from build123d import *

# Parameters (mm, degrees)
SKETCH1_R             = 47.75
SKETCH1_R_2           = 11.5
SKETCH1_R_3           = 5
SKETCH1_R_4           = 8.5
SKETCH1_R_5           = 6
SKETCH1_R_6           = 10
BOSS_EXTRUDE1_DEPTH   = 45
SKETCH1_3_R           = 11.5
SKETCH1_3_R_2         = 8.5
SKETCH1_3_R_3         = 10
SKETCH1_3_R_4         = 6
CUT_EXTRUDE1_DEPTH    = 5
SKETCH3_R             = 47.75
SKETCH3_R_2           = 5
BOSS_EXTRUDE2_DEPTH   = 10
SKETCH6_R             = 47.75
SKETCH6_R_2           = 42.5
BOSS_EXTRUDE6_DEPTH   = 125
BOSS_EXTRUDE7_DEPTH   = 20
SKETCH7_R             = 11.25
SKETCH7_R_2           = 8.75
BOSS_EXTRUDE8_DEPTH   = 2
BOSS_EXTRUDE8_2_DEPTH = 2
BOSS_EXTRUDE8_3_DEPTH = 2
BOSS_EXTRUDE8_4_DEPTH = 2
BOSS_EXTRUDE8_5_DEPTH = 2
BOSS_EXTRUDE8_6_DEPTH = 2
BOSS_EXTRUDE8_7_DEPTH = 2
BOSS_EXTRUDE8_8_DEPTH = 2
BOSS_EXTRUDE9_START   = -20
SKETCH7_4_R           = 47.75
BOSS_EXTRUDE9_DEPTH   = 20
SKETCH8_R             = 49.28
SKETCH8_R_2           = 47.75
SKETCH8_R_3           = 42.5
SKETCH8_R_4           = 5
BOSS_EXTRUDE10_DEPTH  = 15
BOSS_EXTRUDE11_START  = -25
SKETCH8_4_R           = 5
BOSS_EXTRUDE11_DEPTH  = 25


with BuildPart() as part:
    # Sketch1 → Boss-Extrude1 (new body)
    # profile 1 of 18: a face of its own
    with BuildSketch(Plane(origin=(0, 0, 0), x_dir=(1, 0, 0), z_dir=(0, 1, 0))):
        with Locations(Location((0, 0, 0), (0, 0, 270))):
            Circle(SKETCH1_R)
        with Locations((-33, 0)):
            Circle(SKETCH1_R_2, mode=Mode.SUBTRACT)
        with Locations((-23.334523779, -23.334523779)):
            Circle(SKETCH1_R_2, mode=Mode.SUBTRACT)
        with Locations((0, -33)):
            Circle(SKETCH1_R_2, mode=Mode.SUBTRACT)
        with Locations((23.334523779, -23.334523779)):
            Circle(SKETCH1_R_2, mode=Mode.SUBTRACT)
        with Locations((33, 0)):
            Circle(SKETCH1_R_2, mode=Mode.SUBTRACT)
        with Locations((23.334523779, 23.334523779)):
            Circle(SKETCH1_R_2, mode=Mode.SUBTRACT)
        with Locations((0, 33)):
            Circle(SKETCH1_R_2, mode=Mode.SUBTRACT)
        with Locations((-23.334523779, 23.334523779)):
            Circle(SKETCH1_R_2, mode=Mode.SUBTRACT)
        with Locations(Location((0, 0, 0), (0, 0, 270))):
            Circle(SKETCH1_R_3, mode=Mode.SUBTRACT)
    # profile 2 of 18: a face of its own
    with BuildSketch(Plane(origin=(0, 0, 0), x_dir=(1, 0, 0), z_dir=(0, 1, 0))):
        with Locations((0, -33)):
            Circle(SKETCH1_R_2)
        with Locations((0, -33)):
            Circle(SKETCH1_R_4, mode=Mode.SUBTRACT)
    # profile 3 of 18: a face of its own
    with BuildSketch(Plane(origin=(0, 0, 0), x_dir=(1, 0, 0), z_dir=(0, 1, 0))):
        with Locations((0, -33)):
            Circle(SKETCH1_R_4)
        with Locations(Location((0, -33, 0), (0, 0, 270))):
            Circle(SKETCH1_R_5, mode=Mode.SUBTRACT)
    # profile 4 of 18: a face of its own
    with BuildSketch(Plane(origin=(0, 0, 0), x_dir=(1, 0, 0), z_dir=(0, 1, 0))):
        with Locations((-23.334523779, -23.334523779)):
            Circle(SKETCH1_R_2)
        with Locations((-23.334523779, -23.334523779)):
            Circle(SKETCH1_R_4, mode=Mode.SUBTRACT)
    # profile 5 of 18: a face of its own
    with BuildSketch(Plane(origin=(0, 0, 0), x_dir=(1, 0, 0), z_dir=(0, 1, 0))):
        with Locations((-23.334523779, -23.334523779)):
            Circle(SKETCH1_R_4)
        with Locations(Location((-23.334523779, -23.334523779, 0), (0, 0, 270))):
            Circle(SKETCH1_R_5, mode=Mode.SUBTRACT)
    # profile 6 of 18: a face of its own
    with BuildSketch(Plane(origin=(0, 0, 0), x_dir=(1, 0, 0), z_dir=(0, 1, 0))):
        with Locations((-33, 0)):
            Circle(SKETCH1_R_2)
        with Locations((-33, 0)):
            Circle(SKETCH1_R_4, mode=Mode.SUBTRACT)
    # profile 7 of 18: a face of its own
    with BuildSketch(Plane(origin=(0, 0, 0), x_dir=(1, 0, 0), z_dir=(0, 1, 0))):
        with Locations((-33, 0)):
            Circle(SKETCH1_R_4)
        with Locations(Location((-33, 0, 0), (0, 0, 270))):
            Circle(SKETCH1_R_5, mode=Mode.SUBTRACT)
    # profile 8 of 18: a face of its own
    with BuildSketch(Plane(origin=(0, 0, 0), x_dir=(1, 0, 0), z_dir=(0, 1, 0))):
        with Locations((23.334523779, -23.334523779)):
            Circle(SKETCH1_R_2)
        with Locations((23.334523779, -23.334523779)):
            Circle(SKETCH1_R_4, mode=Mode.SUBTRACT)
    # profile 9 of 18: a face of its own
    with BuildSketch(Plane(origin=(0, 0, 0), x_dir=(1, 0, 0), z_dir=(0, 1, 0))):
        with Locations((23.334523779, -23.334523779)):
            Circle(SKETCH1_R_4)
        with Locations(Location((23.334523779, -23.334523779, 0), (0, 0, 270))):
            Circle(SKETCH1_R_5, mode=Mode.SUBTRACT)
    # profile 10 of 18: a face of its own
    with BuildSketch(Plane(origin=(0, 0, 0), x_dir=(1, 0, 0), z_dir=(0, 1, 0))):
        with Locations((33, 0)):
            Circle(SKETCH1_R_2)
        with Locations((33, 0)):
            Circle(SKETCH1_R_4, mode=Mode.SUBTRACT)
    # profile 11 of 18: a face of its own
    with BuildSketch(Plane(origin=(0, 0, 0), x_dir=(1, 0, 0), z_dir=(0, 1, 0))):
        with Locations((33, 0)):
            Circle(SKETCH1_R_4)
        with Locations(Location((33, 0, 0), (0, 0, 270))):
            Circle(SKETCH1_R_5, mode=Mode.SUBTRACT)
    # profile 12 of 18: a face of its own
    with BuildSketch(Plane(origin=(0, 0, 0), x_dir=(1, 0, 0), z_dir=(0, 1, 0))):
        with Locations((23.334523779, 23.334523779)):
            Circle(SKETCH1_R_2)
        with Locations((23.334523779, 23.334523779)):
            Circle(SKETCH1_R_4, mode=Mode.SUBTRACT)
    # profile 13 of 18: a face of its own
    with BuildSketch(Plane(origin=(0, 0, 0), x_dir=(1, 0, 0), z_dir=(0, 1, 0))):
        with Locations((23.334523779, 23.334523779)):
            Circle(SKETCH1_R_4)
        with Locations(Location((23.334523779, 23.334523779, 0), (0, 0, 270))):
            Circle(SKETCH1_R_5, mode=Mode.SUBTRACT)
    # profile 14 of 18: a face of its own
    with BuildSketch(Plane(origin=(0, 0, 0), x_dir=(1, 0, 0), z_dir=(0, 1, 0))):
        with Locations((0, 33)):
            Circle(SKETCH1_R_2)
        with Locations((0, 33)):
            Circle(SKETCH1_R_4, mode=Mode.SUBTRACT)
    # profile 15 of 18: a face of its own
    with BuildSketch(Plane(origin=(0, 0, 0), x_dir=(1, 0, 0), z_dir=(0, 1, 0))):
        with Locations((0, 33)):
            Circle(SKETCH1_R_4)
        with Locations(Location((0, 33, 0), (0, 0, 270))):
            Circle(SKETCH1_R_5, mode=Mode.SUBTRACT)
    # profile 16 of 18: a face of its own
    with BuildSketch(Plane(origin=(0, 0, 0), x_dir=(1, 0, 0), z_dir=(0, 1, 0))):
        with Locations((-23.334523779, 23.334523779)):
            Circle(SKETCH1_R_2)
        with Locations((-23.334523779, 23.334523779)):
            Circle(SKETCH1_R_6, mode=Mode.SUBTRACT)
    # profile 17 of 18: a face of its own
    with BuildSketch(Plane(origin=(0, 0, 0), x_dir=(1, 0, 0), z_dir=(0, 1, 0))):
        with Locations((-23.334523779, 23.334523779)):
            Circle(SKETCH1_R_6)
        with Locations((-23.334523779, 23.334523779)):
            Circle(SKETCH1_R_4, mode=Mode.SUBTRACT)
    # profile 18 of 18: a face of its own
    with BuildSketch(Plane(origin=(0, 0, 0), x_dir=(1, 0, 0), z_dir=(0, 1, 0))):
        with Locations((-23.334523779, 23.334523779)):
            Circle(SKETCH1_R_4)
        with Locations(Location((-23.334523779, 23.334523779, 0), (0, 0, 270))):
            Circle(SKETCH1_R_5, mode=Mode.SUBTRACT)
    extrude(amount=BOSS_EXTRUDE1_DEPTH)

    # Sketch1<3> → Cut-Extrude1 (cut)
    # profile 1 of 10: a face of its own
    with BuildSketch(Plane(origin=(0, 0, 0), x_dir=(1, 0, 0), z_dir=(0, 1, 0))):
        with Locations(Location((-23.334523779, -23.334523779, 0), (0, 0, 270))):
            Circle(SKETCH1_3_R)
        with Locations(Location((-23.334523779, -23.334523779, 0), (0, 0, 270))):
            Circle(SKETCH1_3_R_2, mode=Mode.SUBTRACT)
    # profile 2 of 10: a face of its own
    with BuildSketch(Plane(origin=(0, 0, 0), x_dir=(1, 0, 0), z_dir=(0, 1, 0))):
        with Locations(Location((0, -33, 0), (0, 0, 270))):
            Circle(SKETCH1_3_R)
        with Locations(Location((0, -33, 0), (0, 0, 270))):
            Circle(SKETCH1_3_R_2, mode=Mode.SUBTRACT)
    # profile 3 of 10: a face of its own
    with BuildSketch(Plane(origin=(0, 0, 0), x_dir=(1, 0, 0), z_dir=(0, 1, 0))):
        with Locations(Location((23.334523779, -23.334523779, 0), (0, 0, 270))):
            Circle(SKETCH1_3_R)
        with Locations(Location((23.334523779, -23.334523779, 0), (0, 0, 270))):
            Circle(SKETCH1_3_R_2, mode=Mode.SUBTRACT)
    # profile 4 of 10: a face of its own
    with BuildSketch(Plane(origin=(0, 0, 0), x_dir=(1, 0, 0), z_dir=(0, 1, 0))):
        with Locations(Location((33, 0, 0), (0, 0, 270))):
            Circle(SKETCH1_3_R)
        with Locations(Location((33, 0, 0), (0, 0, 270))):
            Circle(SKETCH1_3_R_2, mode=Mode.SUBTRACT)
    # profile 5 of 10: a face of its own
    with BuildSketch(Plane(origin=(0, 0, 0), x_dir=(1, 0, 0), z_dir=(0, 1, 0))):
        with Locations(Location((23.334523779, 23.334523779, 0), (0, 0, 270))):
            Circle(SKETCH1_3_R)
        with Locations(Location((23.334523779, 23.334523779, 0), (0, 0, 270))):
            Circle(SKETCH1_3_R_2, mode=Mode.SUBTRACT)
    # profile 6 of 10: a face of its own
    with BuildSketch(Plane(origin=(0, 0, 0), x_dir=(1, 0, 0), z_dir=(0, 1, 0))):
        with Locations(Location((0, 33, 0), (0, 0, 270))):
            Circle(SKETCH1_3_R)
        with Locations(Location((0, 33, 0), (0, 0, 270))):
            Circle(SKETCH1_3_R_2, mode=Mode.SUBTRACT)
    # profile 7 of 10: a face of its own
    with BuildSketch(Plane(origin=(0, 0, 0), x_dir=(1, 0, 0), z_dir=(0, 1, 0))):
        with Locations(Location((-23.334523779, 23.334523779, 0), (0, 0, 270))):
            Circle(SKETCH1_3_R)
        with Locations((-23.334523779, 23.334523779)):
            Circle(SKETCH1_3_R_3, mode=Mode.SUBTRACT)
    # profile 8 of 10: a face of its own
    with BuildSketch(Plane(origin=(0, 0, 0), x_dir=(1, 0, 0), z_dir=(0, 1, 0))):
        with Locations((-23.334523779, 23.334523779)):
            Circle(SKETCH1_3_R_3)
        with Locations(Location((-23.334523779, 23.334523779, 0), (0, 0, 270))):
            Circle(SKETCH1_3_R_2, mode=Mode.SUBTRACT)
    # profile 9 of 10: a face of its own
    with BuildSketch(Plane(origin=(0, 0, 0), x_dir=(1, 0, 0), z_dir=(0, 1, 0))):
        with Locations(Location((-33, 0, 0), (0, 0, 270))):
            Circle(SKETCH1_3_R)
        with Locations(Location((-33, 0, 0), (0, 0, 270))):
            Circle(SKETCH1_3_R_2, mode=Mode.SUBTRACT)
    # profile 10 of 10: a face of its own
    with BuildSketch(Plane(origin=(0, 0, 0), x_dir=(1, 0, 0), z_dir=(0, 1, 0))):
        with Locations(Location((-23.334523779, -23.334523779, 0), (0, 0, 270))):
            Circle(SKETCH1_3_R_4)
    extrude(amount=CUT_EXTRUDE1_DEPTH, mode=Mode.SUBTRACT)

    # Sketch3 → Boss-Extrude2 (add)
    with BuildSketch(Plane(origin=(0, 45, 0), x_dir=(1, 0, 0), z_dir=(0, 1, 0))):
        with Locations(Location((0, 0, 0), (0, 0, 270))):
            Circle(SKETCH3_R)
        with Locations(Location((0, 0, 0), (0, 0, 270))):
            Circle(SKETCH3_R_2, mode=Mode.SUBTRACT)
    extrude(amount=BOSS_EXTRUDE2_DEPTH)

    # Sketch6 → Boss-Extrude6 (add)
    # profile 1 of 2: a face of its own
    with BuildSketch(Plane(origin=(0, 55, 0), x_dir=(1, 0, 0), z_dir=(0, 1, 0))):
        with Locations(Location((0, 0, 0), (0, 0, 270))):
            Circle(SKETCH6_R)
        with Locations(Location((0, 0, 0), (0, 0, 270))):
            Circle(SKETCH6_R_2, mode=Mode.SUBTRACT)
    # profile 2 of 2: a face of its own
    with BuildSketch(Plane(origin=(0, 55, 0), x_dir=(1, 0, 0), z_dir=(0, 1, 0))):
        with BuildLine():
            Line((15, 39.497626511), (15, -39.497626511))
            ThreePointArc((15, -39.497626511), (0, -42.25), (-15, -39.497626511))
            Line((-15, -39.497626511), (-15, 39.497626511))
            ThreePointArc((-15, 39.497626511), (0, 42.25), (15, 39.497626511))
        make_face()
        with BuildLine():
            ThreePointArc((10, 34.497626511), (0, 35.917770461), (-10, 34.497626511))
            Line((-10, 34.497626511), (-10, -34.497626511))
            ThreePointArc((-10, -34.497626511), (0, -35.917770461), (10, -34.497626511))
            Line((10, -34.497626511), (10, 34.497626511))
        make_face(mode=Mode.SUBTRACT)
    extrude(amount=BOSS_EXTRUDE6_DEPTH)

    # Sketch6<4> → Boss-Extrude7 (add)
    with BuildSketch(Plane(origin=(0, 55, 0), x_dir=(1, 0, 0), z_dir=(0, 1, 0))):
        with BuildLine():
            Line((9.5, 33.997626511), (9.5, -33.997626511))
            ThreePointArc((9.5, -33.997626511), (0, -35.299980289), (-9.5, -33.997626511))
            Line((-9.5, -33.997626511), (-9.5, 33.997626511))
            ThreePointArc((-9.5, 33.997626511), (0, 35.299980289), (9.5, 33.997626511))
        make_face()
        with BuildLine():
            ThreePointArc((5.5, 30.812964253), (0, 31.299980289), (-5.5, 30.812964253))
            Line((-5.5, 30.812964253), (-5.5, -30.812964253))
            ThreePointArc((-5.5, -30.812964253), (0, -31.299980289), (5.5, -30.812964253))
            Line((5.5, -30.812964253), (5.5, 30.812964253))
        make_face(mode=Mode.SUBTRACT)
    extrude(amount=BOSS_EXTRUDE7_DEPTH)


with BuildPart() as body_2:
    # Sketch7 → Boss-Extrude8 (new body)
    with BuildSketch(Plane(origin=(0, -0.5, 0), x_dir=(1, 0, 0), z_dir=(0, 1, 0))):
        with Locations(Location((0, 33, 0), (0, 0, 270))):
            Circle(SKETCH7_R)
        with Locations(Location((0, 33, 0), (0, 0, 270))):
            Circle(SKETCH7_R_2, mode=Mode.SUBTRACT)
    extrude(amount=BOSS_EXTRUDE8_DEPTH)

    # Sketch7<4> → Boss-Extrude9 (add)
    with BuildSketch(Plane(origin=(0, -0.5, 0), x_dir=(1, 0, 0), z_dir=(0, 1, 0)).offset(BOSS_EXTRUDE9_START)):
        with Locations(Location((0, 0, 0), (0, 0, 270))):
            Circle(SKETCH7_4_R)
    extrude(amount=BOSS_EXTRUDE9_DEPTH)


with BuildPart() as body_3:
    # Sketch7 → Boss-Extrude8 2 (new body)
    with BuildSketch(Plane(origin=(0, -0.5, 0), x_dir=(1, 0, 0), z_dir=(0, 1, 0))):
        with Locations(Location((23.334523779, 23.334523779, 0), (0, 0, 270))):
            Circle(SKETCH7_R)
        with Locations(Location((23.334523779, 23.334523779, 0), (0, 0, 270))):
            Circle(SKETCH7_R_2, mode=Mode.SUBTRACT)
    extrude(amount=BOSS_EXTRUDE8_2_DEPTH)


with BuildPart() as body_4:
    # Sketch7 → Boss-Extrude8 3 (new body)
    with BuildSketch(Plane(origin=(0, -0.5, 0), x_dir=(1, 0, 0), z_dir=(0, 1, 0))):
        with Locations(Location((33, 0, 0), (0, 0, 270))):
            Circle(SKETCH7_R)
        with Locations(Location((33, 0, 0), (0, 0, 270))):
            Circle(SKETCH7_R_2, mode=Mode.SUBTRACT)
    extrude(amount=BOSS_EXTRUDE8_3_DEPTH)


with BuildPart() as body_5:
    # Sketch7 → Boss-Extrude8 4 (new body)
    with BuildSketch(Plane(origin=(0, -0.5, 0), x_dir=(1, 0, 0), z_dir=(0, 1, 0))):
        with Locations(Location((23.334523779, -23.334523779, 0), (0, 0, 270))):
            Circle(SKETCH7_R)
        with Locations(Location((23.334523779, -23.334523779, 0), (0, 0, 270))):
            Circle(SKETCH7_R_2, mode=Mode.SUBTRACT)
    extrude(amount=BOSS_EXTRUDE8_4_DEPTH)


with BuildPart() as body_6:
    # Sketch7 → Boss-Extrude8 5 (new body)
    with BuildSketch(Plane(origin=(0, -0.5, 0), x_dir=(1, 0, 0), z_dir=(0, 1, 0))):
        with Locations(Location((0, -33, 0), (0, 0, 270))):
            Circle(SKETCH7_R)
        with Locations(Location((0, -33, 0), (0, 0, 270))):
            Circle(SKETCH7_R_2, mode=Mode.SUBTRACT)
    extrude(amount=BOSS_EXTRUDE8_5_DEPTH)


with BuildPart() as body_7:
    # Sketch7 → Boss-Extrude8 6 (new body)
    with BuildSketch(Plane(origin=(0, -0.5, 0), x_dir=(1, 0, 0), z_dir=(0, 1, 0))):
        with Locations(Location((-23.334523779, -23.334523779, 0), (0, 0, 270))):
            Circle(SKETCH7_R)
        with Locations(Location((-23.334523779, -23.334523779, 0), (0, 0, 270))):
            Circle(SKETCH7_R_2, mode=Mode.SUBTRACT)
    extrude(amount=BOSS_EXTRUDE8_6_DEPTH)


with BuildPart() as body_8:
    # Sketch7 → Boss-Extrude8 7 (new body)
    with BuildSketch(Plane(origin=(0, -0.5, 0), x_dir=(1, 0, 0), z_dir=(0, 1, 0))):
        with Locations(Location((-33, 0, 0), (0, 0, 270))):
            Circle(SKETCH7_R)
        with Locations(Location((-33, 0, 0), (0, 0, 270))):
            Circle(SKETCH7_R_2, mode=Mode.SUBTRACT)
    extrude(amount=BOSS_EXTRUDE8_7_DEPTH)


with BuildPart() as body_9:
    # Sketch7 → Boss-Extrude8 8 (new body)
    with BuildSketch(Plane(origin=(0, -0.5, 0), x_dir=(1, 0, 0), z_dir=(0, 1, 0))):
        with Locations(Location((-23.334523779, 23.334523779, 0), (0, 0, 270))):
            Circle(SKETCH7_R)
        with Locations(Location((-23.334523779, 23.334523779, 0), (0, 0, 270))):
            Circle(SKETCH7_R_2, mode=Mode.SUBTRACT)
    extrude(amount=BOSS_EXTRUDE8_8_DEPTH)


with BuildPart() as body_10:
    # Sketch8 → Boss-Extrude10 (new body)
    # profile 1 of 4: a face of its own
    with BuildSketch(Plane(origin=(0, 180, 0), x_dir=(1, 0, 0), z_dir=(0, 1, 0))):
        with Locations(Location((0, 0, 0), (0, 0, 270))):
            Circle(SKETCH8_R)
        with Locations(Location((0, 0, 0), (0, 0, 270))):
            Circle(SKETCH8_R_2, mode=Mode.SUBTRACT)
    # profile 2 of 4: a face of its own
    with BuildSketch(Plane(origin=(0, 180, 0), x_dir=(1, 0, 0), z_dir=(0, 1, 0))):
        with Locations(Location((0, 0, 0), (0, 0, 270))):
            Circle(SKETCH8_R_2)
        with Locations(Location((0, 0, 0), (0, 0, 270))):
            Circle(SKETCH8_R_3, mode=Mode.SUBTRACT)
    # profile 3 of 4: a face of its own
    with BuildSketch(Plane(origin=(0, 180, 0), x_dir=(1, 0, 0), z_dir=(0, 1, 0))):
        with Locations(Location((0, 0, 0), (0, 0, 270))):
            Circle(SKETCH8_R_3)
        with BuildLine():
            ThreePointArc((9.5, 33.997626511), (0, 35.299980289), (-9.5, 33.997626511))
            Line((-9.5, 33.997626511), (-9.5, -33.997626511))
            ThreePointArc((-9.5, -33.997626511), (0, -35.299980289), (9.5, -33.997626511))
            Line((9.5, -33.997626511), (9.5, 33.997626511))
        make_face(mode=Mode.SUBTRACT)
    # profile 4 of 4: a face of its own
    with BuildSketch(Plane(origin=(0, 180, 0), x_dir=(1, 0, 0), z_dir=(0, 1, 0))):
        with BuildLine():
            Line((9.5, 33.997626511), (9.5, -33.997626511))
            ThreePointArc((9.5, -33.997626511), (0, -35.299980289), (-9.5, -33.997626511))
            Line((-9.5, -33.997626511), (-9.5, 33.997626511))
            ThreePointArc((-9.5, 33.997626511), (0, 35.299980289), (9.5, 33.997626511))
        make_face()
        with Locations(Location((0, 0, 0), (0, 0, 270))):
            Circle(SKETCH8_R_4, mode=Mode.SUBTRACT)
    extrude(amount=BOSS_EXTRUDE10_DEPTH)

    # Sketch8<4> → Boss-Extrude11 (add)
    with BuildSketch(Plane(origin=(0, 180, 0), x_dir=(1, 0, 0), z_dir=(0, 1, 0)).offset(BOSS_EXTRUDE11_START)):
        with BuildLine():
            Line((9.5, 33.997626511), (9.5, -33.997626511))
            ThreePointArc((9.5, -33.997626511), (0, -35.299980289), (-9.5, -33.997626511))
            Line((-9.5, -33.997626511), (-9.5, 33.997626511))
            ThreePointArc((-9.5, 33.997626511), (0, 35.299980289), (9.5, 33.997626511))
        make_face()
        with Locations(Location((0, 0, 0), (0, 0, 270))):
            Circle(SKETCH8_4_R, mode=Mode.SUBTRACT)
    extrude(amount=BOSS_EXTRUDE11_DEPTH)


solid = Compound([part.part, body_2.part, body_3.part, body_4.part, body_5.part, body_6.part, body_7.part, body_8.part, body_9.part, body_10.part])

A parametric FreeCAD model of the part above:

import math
import FreeCAD as App
import Part
import Sketcher
Q = App.Units.Quantity

doc = App.newDocument("Part")
body = doc.addObject("PartDesign::Body", "Body")

# Sketch on XZ plane
sketch1 = body.newObject("Sketcher::SketchObject", "Sketch")
sketch1.AttachmentSupport = (doc.getObject("XZ_Plane"), [""])
sketch1.MapMode = "FlatFace"
sketch1.addGeometry(Part.Circle(App.Vector(0, 0, 0), App.Vector(0, 0, 1), 48), False)
sketch1.addGeometry(Part.Circle(App.Vector(0, 0, 0), App.Vector(0, 0, 1), 5), False)
sketch1.addGeometry(Part.Circle(App.Vector(0, -33, 0), App.Vector(0, 0, 1), 6), False)
sketch1.addGeometry(Part.Circle(App.Vector(-33, 0, 0), App.Vector(0, 0, 1), 6), False)
sketch1.addGeometry(Part.Circle(App.Vector(-23, 23, 0), App.Vector(0, 0, 1), 6), False)
sketch1.addGeometry(Part.Circle(App.Vector(23, -23, 0), App.Vector(0, 0, 1), 6), False)
sketch1.addGeometry(Part.Circle(App.Vector(33, 0, 0), App.Vector(0, 0, 1), 6), False)
sketch1.addGeometry(Part.Circle(App.Vector(0, 33, 0), App.Vector(0, 0, 1), 6), False)
sketch1.addGeometry(Part.Circle(App.Vector(23, 23, 0), App.Vector(0, 0, 1), 6), False)
sketch1.addGeometry(Part.Circle(App.Vector(-23, -23, 0), App.Vector(0, 0, 1), 6), False)
sketch1.addConstraint(Sketcher.Constraint("Coincident", 0, 3, -1, 1))
sketch1.addConstraint(Sketcher.Constraint("Coincident", 1, 3, -1, 1))
sketch1.addConstraint(Sketcher.Constraint("Equal", 2, 3))
sketch1.addConstraint(Sketcher.Constraint("Equal", 3, 4))
sketch1.addConstraint(Sketcher.Constraint("Equal", 4, 5))
sketch1.addConstraint(Sketcher.Constraint("Equal", 5, 6))
sketch1.addConstraint(Sketcher.Constraint("Equal", 6, 7))
sketch1.addConstraint(Sketcher.Constraint("Equal", 7, 8))
sketch1.addConstraint(Sketcher.Constraint("Equal", 8, 9))
sketch1.addConstraint(Sketcher.Constraint("Symmetric", 4, 3, 5, 3, -1, 1))
sketch1.addConstraint(Sketcher.Constraint("Symmetric", 3, 3, 6, 3, -1, 1))
sketch1.addConstraint(Sketcher.Constraint("Symmetric", 2, 3, 7, 3, -1, 1))
sketch1.addConstraint(Sketcher.Constraint("Symmetric", 8, 3, 9, 3, -1, 1))
sketch1.addConstraint(Sketcher.Constraint("Symmetric", 4, 3, 8, 3, -2))
sketch1.addConstraint(Sketcher.Constraint("PointOnObject", 2, 3, -2))
sketch1.addConstraint(Sketcher.Constraint("PointOnObject", 3, 3, -1))
sketch1.addConstraint(Sketcher.Constraint("Diameter", 1, Q("10 mm")))
sketch1.addConstraint(Sketcher.Constraint("Diameter", 2, Q("12 mm")))
sketch1.addConstraint(Sketcher.Constraint("Diameter", 0, Q("95.5 mm")))
sketch1.addConstraint(Sketcher.Constraint("DistanceY", 2, 3, -1, 1, Q("33 mm")))
sketch1.addConstraint(Sketcher.Constraint("DistanceX", 3, 3, -1, 1, Q("33 mm")))
sketch1.addConstraint(Sketcher.Constraint("DistanceX", 4, 3, -1, 1, Q("23.334524 mm")))
sketch1.addConstraint(Sketcher.Constraint("DistanceY", -1, 1, 4, 3, Q("23.334524 mm")))
pad1 = body.newObject("PartDesign::Pad", "Pad")
pad1.Profile = sketch1
pad1.Length = 45
pad1.Reversed = True

# Sketch on XZ plane
sketch2 = body.newObject("Sketcher::SketchObject", "Sketch001")
sketch2.AttachmentSupport = (doc.getObject("XZ_Plane"), [""])
sketch2.MapMode = "FlatFace"
sketch2.addGeometry(Part.Circle(App.Vector(-23, 23, 0), App.Vector(0, 0, 1), 12), False)
sketch2.addGeometry(Part.Circle(App.Vector(-23, 23, 0), App.Vector(0, 0, 1), 8), False)
sketch2.addGeometry(Part.Circle(App.Vector(0, 33, 0), App.Vector(0, 0, 1), 12), False)
sketch2.addGeometry(Part.Circle(App.Vector(0, 33, 0), App.Vector(0, 0, 1), 8), False)
sketch2.addGeometry(Part.Circle(App.Vector(23, 23, 0), App.Vector(0, 0, 1), 12), False)
sketch2.addGeometry(Part.Circle(App.Vector(23, 23, 0), App.Vector(0, 0, 1), 8), False)
sketch2.addGeometry(Part.Circle(App.Vector(33, 0, 0), App.Vector(0, 0, 1), 12), False)
sketch2.addGeometry(Part.Circle(App.Vector(33, 0, 0), App.Vector(0, 0, 1), 8), False)
sketch2.addGeometry(Part.Circle(App.Vector(23, -23, 0), App.Vector(0, 0, 1), 12), False)
sketch2.addGeometry(Part.Circle(App.Vector(23, -23, 0), App.Vector(0, 0, 1), 8), False)
sketch2.addGeometry(Part.Circle(App.Vector(0, -33, 0), App.Vector(0, 0, 1), 12), False)
sketch2.addGeometry(Part.Circle(App.Vector(0, -33, 0), App.Vector(0, 0, 1), 8), False)
sketch2.addGeometry(Part.Circle(App.Vector(-23, -23, 0), App.Vector(0, 0, 1), 12), False)
sketch2.addGeometry(Part.Circle(App.Vector(-23, -23, 0), App.Vector(0, 0, 1), 8), False)
sketch2.addGeometry(Part.Circle(App.Vector(-33, 0, 0), App.Vector(0, 0, 1), 12), False)
sketch2.addGeometry(Part.Circle(App.Vector(-33, 0, 0), App.Vector(0, 0, 1), 8), False)
sketch2.addGeometry(Part.Circle(App.Vector(-23, 23, 0), App.Vector(0, 0, 1), 6), False)
sketch2.addConstraint(Sketcher.Constraint("Coincident", 1, 3, 0, 3))
sketch2.addConstraint(Sketcher.Constraint("Coincident", 3, 3, 2, 3))
sketch2.addConstraint(Sketcher.Constraint("Coincident", 5, 3, 4, 3))
sketch2.addConstraint(Sketcher.Constraint("Coincident", 7, 3, 6, 3))
sketch2.addConstraint(Sketcher.Constraint("Coincident", 9, 3, 8, 3))
sketch2.addConstraint(Sketcher.Constraint("Coincident", 11, 3, 10, 3))
sketch2.addConstraint(Sketcher.Constraint("Coincident", 13, 3, 12, 3))
sketch2.addConstraint(Sketcher.Constraint("Coincident", 15, 3, 14, 3))
sketch2.addConstraint(Sketcher.Constraint("Coincident", 16, 3, 0, 3))
sketch2.addConstraint(Sketcher.Constraint("Equal", 0, 2))
sketch2.addConstraint(Sketcher.Constraint("Equal", 1, 3))
sketch2.addConstraint(Sketcher.Constraint("Equal", 2, 4))
sketch2.addConstraint(Sketcher.Constraint("Equal", 3, 5))
sketch2.addConstraint(Sketcher.Constraint("Equal", 4, 6))
sketch2.addConstraint(Sketcher.Constraint("Equal", 5, 7))
sketch2.addConstraint(Sketcher.Constraint("Equal", 6, 8))
sketch2.addConstraint(Sketcher.Constraint("Equal", 7, 9))
sketch2.addConstraint(Sketcher.Constraint("Equal", 8, 10))
sketch2.addConstraint(Sketcher.Constraint("Equal", 9, 11))
sketch2.addConstraint(Sketcher.Constraint("Equal", 10, 12))
sketch2.addConstraint(Sketcher.Constraint("Equal", 11, 13))
sketch2.addConstraint(Sketcher.Constraint("Equal", 12, 14))
sketch2.addConstraint(Sketcher.Constraint("Equal", 13, 15))
sketch2.addConstraint(Sketcher.Constraint("Symmetric", 0, 3, 8, 3, -1, 1))
sketch2.addConstraint(Sketcher.Constraint("Symmetric", 2, 3, 10, 3, -1, 1))
sketch2.addConstraint(Sketcher.Constraint("Symmetric", 4, 3, 12, 3, -1, 1))
sketch2.addConstraint(Sketcher.Constraint("Symmetric", 6, 3, 14, 3, -1, 1))
sketch2.addConstraint(Sketcher.Constraint("Symmetric", 0, 3, 4, 3, -2))
sketch2.addConstraint(Sketcher.Constraint("PointOnObject", 2, 3, -2))
sketch2.addConstraint(Sketcher.Constraint("PointOnObject", 6, 3, -1))
sketch2.addConstraint(Sketcher.Constraint("Diameter", 0, Q("23 mm")))
sketch2.addConstraint(Sketcher.Constraint("Diameter", 1, Q("17 mm")))
sketch2.addConstraint(Sketcher.Constraint("Diameter", 16, Q("12 mm")))
sketch2.addConstraint(Sketcher.Constraint("DistanceY", -1, 1, 2, 3, Q("33 mm")))
sketch2.addConstraint(Sketcher.Constraint("DistanceX", -1, 1, 6, 3, Q("33 mm")))
sketch2.addConstraint(Sketcher.Constraint("DistanceX", 0, 3, -1, 1, Q("23.334524 mm")))
sketch2.addConstraint(Sketcher.Constraint("DistanceY", -1, 1, 0, 3, Q("23.334524 mm")))
pocket1 = body.newObject("PartDesign::Pocket", "Pocket")
pocket1.Profile = sketch2
pocket1.Length = 5

# Sketch on XZ plane
sketch3 = body.newObject("Sketcher::SketchObject", "Sketch002")
sketch3.AttachmentSupport = (doc.getObject("XZ_Plane"), [""])
sketch3.MapMode = "FlatFace"
sketch3.AttachmentOffset = App.Placement(App.Vector(0, 0, -45), App.Rotation())
sketch3.addGeometry(Part.Circle(App.Vector(0, 0, 0), App.Vector(0, 0, 1), 48), False)
sketch3.addGeometry(Part.Circle(App.Vector(0, 0, 0), App.Vector(0, 0, 1), 5), False)
sketch3.addConstraint(Sketcher.Constraint("Coincident", 0, 3, -1, 1))
sketch3.addConstraint(Sketcher.Constraint("Coincident", 1, 3, -1, 1))
sketch3.addConstraint(Sketcher.Constraint("Diameter", 1, Q("10 mm")))
sketch3.addConstraint(Sketcher.Constraint("Diameter", 0, Q("95.5 mm")))
pad2 = body.newObject("PartDesign::Pad", "Pad001")
pad2.Profile = sketch3
pad2.Length = 10
pad2.Reversed = True

# Sketch on XZ plane
sketch4 = body.newObject("Sketcher::SketchObject", "Sketch003")
sketch4.AttachmentSupport = (doc.getObject("XZ_Plane"), [""])
sketch4.MapMode = "FlatFace"
sketch4.AttachmentOffset = App.Placement(App.Vector(0, 0, -55), App.Rotation())
sketch4.addGeometry(Part.Circle(App.Vector(0, 0, 0), App.Vector(0, 0, 1), 48), False)
sketch4.addGeometry(Part.Circle(App.Vector(0, 0, 0), App.Vector(0, 0, 1), 42), False)
sketch4.addGeometry(Part.LineSegment(App.Vector(15, 39, 0), App.Vector(15, -39, 0)), False)
sketch4.addGeometry(Part.ArcOfCircle(Part.Circle(App.Vector(0, 0, 0), App.Vector(0, 0, 1), 42), math.radians(-111), math.radians(-69)), False)
sketch4.addGeometry(Part.LineSegment(App.Vector(-15, -39, 0), App.Vector(-15, 39, 0)), False)
sketch4.addGeometry(Part.ArcOfCircle(Part.Circle(App.Vector(0, 0, 0), App.Vector(0, 0, 1), 42), math.radians(69), math.radians(111)), False)
sketch4.addGeometry(Part.LineSegment(App.Vector(10, -34, 0), App.Vector(10, 34, 0)), False)
sketch4.addGeometry(Part.ArcOfCircle(Part.Circle(App.Vector(0, 0, 0), App.Vector(0, 0, 1), 36), math.radians(74), math.radians(106)), False)
sketch4.addGeometry(Part.LineSegment(App.Vector(-10, 34, 0), App.Vector(-10, -34, 0)), False)
sketch4.addGeometry(Part.ArcOfCircle(Part.Circle(App.Vector(0, 0, 0), App.Vector(0, 0, 1), 36), math.radians(-106), math.radians(-74)), False)
sketch4.addConstraint(Sketcher.Constraint("Coincident", 2, 2, 3, 2))
sketch4.addConstraint(Sketcher.Constraint("Coincident", 3, 1, 4, 1))
sketch4.addConstraint(Sketcher.Constraint("Coincident", 4, 2, 5, 2))
sketch4.addConstraint(Sketcher.Constraint("Coincident", 5, 1, 2, 1))
sketch4.addConstraint(Sketcher.Constraint("Coincident", 6, 2, 7, 1))
sketch4.addConstraint(Sketcher.Constraint("Coincident", 7, 2, 8, 1))
sketch4.addConstraint(Sketcher.Constraint("Coincident", 8, 2, 9, 1))
sketch4.addConstraint(Sketcher.Constraint("Coincident", 9, 2, 6, 1))
sketch4.addConstraint(Sketcher.Constraint("Vertical", 2))
sketch4.addConstraint(Sketcher.Constraint("Vertical", 4))
sketch4.addConstraint(Sketcher.Constraint("Vertical", 6))
sketch4.addConstraint(Sketcher.Constraint("Vertical", 8))
sketch4.addConstraint(Sketcher.Constraint("Coincident", 0, 3, -1, 1))
sketch4.addConstraint(Sketcher.Constraint("Coincident", 1, 3, -1, 1))
sketch4.addConstraint(Sketcher.Constraint("Coincident", 3, 3, -1, 1))
sketch4.addConstraint(Sketcher.Constraint("Coincident", 5, 3, -1, 1))
sketch4.addConstraint(Sketcher.Constraint("Coincident", 7, 3, -1, 1))
sketch4.addConstraint(Sketcher.Constraint("Coincident", 9, 3, -1, 1))
sketch4.addConstraint(Sketcher.Constraint("Equal", 3, 5))
sketch4.addConstraint(Sketcher.Constraint("Equal", 7, 9))
sketch4.addConstraint(Sketcher.Constraint("Horizontal", 2, 2, 3, 1))
sketch4.addConstraint(Sketcher.Constraint("Horizontal", 6, 2, 7, 2))
sketch4.addConstraint(Sketcher.Constraint("Diameter", 1, Q("85 mm")))
sketch4.addConstraint(Sketcher.Constraint("Diameter", 0, Q("95.5 mm")))
sketch4.addConstraint(Sketcher.Constraint("Radius", 3, Q("42.25 mm")))
sketch4.addConstraint(Sketcher.Constraint("DistanceX", -1, 1, 2, 2, Q("15 mm")))
sketch4.addConstraint(Sketcher.Constraint("DistanceX", -1, 1, 6, 2, Q("10 mm")))
sketch4.addConstraint(Sketcher.Constraint("DistanceY", 6, 2, 5, 1, Q("5 mm")))
pad3 = body.newObject("PartDesign::Pad", "Pad002")
pad3.Profile = sketch4
pad3.Length = 125
pad3.Reversed = True

# Sketch on XZ plane
sketch5 = body.newObject("Sketcher::SketchObject", "Sketch004")
sketch5.AttachmentSupport = (doc.getObject("XZ_Plane"), [""])
sketch5.MapMode = "FlatFace"
sketch5.AttachmentOffset = App.Placement(App.Vector(0, 0, -55), App.Rotation())
sketch5.addGeometry(Part.LineSegment(App.Vector(10, 34, 0), App.Vector(10, -34, 0)), False)
sketch5.addGeometry(Part.ArcOfCircle(Part.Circle(App.Vector(0, 0, 0), App.Vector(0, 0, 1), 35), math.radians(-106), math.radians(-74)), False)
sketch5.addGeometry(Part.LineSegment(App.Vector(-10, -34, 0), App.Vector(-10, 34, 0)), False)
sketch5.addGeometry(Part.ArcOfCircle(Part.Circle(App.Vector(0, 0, 0), App.Vector(0, 0, 1), 35), math.radians(74), math.radians(106)), False)
sketch5.addGeometry(Part.LineSegment(App.Vector(6, -31, 0), App.Vector(6, 31, 0)), False)
sketch5.addGeometry(Part.ArcOfCircle(Part.Circle(App.Vector(0, 0, 0), App.Vector(0, 0, 1), 31), math.radians(80), math.radians(100)), False)
sketch5.addGeometry(Part.LineSegment(App.Vector(-6, 31, 0), App.Vector(-6, -31, 0)), False)
sketch5.addGeometry(Part.ArcOfCircle(Part.Circle(App.Vector(0, 0, 0), App.Vector(0, 0, 1), 31), math.radians(-100), math.radians(-80)), False)
sketch5.addConstraint(Sketcher.Constraint("Coincident", 0, 2, 1, 2))
sketch5.addConstraint(Sketcher.Constraint("Coincident", 1, 1, 2, 1))
sketch5.addConstraint(Sketcher.Constraint("Coincident", 2, 2, 3, 2))
sketch5.addConstraint(Sketcher.Constraint("Coincident", 3, 1, 0, 1))
sketch5.addConstraint(Sketcher.Constraint("Coincident", 4, 2, 5, 1))
sketch5.addConstraint(Sketcher.Constraint("Coincident", 5, 2, 6, 1))
sketch5.addConstraint(Sketcher.Constraint("Coincident", 6, 2, 7, 1))
sketch5.addConstraint(Sketcher.Constraint("Coincident", 7, 2, 4, 1))
sketch5.addConstraint(Sketcher.Constraint("Vertical", 0))
sketch5.addConstraint(Sketcher.Constraint("Vertical", 2))
sketch5.addConstraint(Sketcher.Constraint("Vertical", 4))
sketch5.addConstraint(Sketcher.Constraint("Vertical", 6))
sketch5.addConstraint(Sketcher.Constraint("Coincident", 1, 3, -1, 1))
sketch5.addConstraint(Sketcher.Constraint("Coincident", 3, 3, -1, 1))
sketch5.addConstraint(Sketcher.Constraint("Coincident", 5, 3, -1, 1))
sketch5.addConstraint(Sketcher.Constraint("Coincident", 7, 3, -1, 1))
sketch5.addConstraint(Sketcher.Constraint("Equal", 1, 3))
sketch5.addConstraint(Sketcher.Constraint("Equal", 5, 7))
sketch5.addConstraint(Sketcher.Constraint("Horizontal", 0, 2, 1, 1))
sketch5.addConstraint(Sketcher.Constraint("Horizontal", 4, 2, 5, 2))
sketch5.addConstraint(Sketcher.Constraint("DistanceX", 1, 1, 0, 2, Q("19 mm")))
sketch5.addConstraint(Sketcher.Constraint("DistanceX", 4, 2, 3, 1, Q("4 mm")))
sketch5.addConstraint(Sketcher.Constraint("Radius", 1, Q("35.29998 mm")))
sketch5.addConstraint(Sketcher.Constraint("Radius", 5, Q("31.29998 mm")))
pad4 = body.newObject("PartDesign::Pad", "Pad003")
pad4.Profile = sketch5
pad4.Length = 20
pad4.Reversed = True
body2 = doc.addObject("PartDesign::Body", "Body001")

# Sketch on XZ plane
sketch6 = body2.newObject("Sketcher::SketchObject", "Sketch005")
sketch6.AttachmentSupport = (doc.getObject("XZ_Plane001"), [""])
sketch6.MapMode = "FlatFace"
sketch6.AttachmentOffset = App.Placement(App.Vector(0, 0, 0.5), App.Rotation())
sketch6.addGeometry(Part.Circle(App.Vector(0, -33, 0), App.Vector(0, 0, 1), 11), False)
sketch6.addGeometry(Part.Circle(App.Vector(0, -33, 0), App.Vector(0, 0, 1), 9), False)
sketch6.addConstraint(Sketcher.Constraint("Coincident", 1, 3, 0, 3))
sketch6.addConstraint(Sketcher.Constraint("PointOnObject", 0, 3, -2))
sketch6.addConstraint(Sketcher.Constraint("Diameter", 0, Q("22.5 mm")))
sketch6.addConstraint(Sketcher.Constraint("Diameter", 1, Q("17.5 mm")))
sketch6.addConstraint(Sketcher.Constraint("DistanceY", 0, 3, -1, 1, Q("33 mm")))
pad5 = body2.newObject("PartDesign::Pad", "Pad004")
pad5.Profile = sketch6
pad5.Length = 2
pad5.Reversed = True

# Sketch on XZ plane
sketch7 = body2.newObject("Sketcher::SketchObject", "Sketch006")
sketch7.AttachmentSupport = (doc.getObject("XZ_Plane001"), [""])
sketch7.MapMode = "FlatFace"
sketch7.AttachmentOffset = App.Placement(App.Vector(0, 0, 20.5), App.Rotation())
sketch7.addGeometry(Part.Circle(App.Vector(0, 0, 0), App.Vector(0, 0, 1), 48), False)
sketch7.addConstraint(Sketcher.Constraint("Coincident", 0, 3, -1, 1))
sketch7.addConstraint(Sketcher.Constraint("Diameter", 0, Q("95.5 mm")))
pad6 = body2.newObject("PartDesign::Pad", "Pad005")
pad6.Profile = sketch7
pad6.Length = 20
pad6.Reversed = True
body3 = doc.addObject("PartDesign::Body", "Body002")

# Sketch on XZ plane
sketch8 = body3.newObject("Sketcher::SketchObject", "Sketch007")
sketch8.AttachmentSupport = (doc.getObject("XZ_Plane002"), [""])
sketch8.MapMode = "FlatFace"
sketch8.AttachmentOffset = App.Placement(App.Vector(0, 0, 0.5), App.Rotation())
sketch8.addGeometry(Part.Circle(App.Vector(23, -23, 0), App.Vector(0, 0, 1), 11), False)
sketch8.addGeometry(Part.Circle(App.Vector(23, -23, 0), App.Vector(0, 0, 1), 9), False)
sketch8.addConstraint(Sketcher.Constraint("Coincident", 1, 3, 0, 3))
sketch8.addConstraint(Sketcher.Constraint("Diameter", 0, Q("22.5 mm")))
sketch8.addConstraint(Sketcher.Constraint("Diameter", 1, Q("17.5 mm")))
sketch8.addConstraint(Sketcher.Constraint("DistanceX", -1, 1, 0, 3, Q("23.334524 mm")))
sketch8.addConstraint(Sketcher.Constraint("DistanceY", 0, 3, -1, 1, Q("23.334524 mm")))
pad7 = body3.newObject("PartDesign::Pad", "Pad006")
pad7.Profile = sketch8
pad7.Length = 2
pad7.Reversed = True
body4 = doc.addObject("PartDesign::Body", "Body003")

# Sketch on XZ plane
sketch9 = body4.newObject("Sketcher::SketchObject", "Sketch008")
sketch9.AttachmentSupport = (doc.getObject("XZ_Plane003"), [""])
sketch9.MapMode = "FlatFace"
sketch9.AttachmentOffset = App.Placement(App.Vector(0, 0, 0.5), App.Rotation())
sketch9.addGeometry(Part.Circle(App.Vector(33, 0, 0), App.Vector(0, 0, 1), 11), False)
sketch9.addGeometry(Part.Circle(App.Vector(33, 0, 0), App.Vector(0, 0, 1), 9), False)
sketch9.addConstraint(Sketcher.Constraint("Coincident", 1, 3, 0, 3))
sketch9.addConstraint(Sketcher.Constraint("PointOnObject", 0, 3, -1))
sketch9.addConstraint(Sketcher.Constraint("Diameter", 0, Q("22.5 mm")))
sketch9.addConstraint(Sketcher.Constraint("Diameter", 1, Q("17.5 mm")))
sketch9.addConstraint(Sketcher.Constraint("DistanceX", -1, 1, 0, 3, Q("33 mm")))
pad8 = body4.newObject("PartDesign::Pad", "Pad007")
pad8.Profile = sketch9
pad8.Length = 2
pad8.Reversed = True
body5 = doc.addObject("PartDesign::Body", "Body004")

# Sketch on XZ plane
sketch10 = body5.newObject("Sketcher::SketchObject", "Sketch009")
sketch10.AttachmentSupport = (doc.getObject("XZ_Plane004"), [""])
sketch10.MapMode = "FlatFace"
sketch10.AttachmentOffset = App.Placement(App.Vector(0, 0, 0.5), App.Rotation())
sketch10.addGeometry(Part.Circle(App.Vector(23, 23, 0), App.Vector(0, 0, 1), 11), False)
sketch10.addGeometry(Part.Circle(App.Vector(23, 23, 0), App.Vector(0, 0, 1), 9), False)
sketch10.addConstraint(Sketcher.Constraint("Coincident", 1, 3, 0, 3))
sketch10.addConstraint(Sketcher.Constraint("Diameter", 0, Q("22.5 mm")))
sketch10.addConstraint(Sketcher.Constraint("Diameter", 1, Q("17.5 mm")))
sketch10.addConstraint(Sketcher.Constraint("DistanceX", -1, 1, 0, 3, Q("23.334524 mm")))
sketch10.addConstraint(Sketcher.Constraint("DistanceY", -1, 1, 0, 3, Q("23.334524 mm")))
pad9 = body5.newObject("PartDesign::Pad", "Pad008")
pad9.Profile = sketch10
pad9.Length = 2
pad9.Reversed = True
body6 = doc.addObject("PartDesign::Body", "Body005")

# Sketch on XZ plane
sketch11 = body6.newObject("Sketcher::SketchObject", "Sketch010")
sketch11.AttachmentSupport = (doc.getObject("XZ_Plane005"), [""])
sketch11.MapMode = "FlatFace"
sketch11.AttachmentOffset = App.Placement(App.Vector(0, 0, 0.5), App.Rotation())
sketch11.addGeometry(Part.Circle(App.Vector(0, 33, 0), App.Vector(0, 0, 1), 11), False)
sketch11.addGeometry(Part.Circle(App.Vector(0, 33, 0), App.Vector(0, 0, 1), 9), False)
sketch11.addConstraint(Sketcher.Constraint("Coincident", 1, 3, 0, 3))
sketch11.addConstraint(Sketcher.Constraint("PointOnObject", 0, 3, -2))
sketch11.addConstraint(Sketcher.Constraint("Diameter", 0, Q("22.5 mm")))
sketch11.addConstraint(Sketcher.Constraint("Diameter", 1, Q("17.5 mm")))
sketch11.addConstraint(Sketcher.Constraint("DistanceY", -1, 1, 0, 3, Q("33 mm")))
pad10 = body6.newObject("PartDesign::Pad", "Pad009")
pad10.Profile = sketch11
pad10.Length = 2
pad10.Reversed = True
body7 = doc.addObject("PartDesign::Body", "Body006")

# Sketch on XZ plane
sketch12 = body7.newObject("Sketcher::SketchObject", "Sketch011")
sketch12.AttachmentSupport = (doc.getObject("XZ_Plane006"), [""])
sketch12.MapMode = "FlatFace"
sketch12.AttachmentOffset = App.Placement(App.Vector(0, 0, 0.5), App.Rotation())
sketch12.addGeometry(Part.Circle(App.Vector(-23, 23, 0), App.Vector(0, 0, 1), 11), False)
sketch12.addGeometry(Part.Circle(App.Vector(-23, 23, 0), App.Vector(0, 0, 1), 9), False)
sketch12.addConstraint(Sketcher.Constraint("Coincident", 1, 3, 0, 3))
sketch12.addConstraint(Sketcher.Constraint("Diameter", 0, Q("22.5 mm")))
sketch12.addConstraint(Sketcher.Constraint("Diameter", 1, Q("17.5 mm")))
sketch12.addConstraint(Sketcher.Constraint("DistanceX", 0, 3, -1, 1, Q("23.334524 mm")))
sketch12.addConstraint(Sketcher.Constraint("DistanceY", -1, 1, 0, 3, Q("23.334524 mm")))
pad11 = body7.newObject("PartDesign::Pad", "Pad010")
pad11.Profile = sketch12
pad11.Length = 2
pad11.Reversed = True
body8 = doc.addObject("PartDesign::Body", "Body007")

# Sketch on XZ plane
sketch13 = body8.newObject("Sketcher::SketchObject", "Sketch012")
sketch13.AttachmentSupport = (doc.getObject("XZ_Plane007"), [""])
sketch13.MapMode = "FlatFace"
sketch13.AttachmentOffset = App.Placement(App.Vector(0, 0, 0.5), App.Rotation())
sketch13.addGeometry(Part.Circle(App.Vector(-33, 0, 0), App.Vector(0, 0, 1), 11), False)
sketch13.addGeometry(Part.Circle(App.Vector(-33, 0, 0), App.Vector(0, 0, 1), 9), False)
sketch13.addConstraint(Sketcher.Constraint("Coincident", 1, 3, 0, 3))
sketch13.addConstraint(Sketcher.Constraint("PointOnObject", 0, 3, -1))
sketch13.addConstraint(Sketcher.Constraint("Diameter", 0, Q("22.5 mm")))
sketch13.addConstraint(Sketcher.Constraint("Diameter", 1, Q("17.5 mm")))
sketch13.addConstraint(Sketcher.Constraint("DistanceX", 0, 3, -1, 1, Q("33 mm")))
pad12 = body8.newObject("PartDesign::Pad", "Pad011")
pad12.Profile = sketch13
pad12.Length = 2
pad12.Reversed = True
body9 = doc.addObject("PartDesign::Body", "Body008")

# Sketch on XZ plane
sketch14 = body9.newObject("Sketcher::SketchObject", "Sketch013")
sketch14.AttachmentSupport = (doc.getObject("XZ_Plane008"), [""])
sketch14.MapMode = "FlatFace"
sketch14.AttachmentOffset = App.Placement(App.Vector(0, 0, 0.5), App.Rotation())
sketch14.addGeometry(Part.Circle(App.Vector(-23, -23, 0), App.Vector(0, 0, 1), 11), False)
sketch14.addGeometry(Part.Circle(App.Vector(-23, -23, 0), App.Vector(0, 0, 1), 9), False)
sketch14.addConstraint(Sketcher.Constraint("Coincident", 1, 3, 0, 3))
sketch14.addConstraint(Sketcher.Constraint("Diameter", 0, Q("22.5 mm")))
sketch14.addConstraint(Sketcher.Constraint("Diameter", 1, Q("17.5 mm")))
sketch14.addConstraint(Sketcher.Constraint("DistanceX", 0, 3, -1, 1, Q("23.334524 mm")))
sketch14.addConstraint(Sketcher.Constraint("DistanceY", 0, 3, -1, 1, Q("23.334524 mm")))
pad13 = body9.newObject("PartDesign::Pad", "Pad012")
pad13.Profile = sketch14
pad13.Length = 2
pad13.Reversed = True
body10 = doc.addObject("PartDesign::Body", "Body009")

# Sketch on XZ plane
sketch15 = body10.newObject("Sketcher::SketchObject", "Sketch014")
sketch15.AttachmentSupport = (doc.getObject("XZ_Plane009"), [""])
sketch15.MapMode = "FlatFace"
sketch15.AttachmentOffset = App.Placement(App.Vector(0, 0, -180), App.Rotation())
sketch15.addGeometry(Part.Circle(App.Vector(0, 0, 0), App.Vector(0, 0, 1), 49), False)
sketch15.addGeometry(Part.Circle(App.Vector(0, 0, 0), App.Vector(0, 0, 1), 5), False)
sketch15.addConstraint(Sketcher.Constraint("Coincident", 0, 3, -1, 1))
sketch15.addConstraint(Sketcher.Constraint("Coincident", 1, 3, -1, 1))
sketch15.addConstraint(Sketcher.Constraint("Diameter", 1, Q("10 mm")))
sketch15.addConstraint(Sketcher.Constraint("Diameter", 0, Q("98.56 mm")))
pad14 = body10.newObject("PartDesign::Pad", "Pad013")
pad14.Profile = sketch15
pad14.Length = 15
pad14.Reversed = True

# Sketch on XZ plane
sketch16 = body10.newObject("Sketcher::SketchObject", "Sketch015")
sketch16.AttachmentSupport = (doc.getObject("XZ_Plane009"), [""])
sketch16.MapMode = "FlatFace"
sketch16.AttachmentOffset = App.Placement(App.Vector(0, 0, -155), App.Rotation())
sketch16.addGeometry(Part.LineSegment(App.Vector(10, 34, 0), App.Vector(10, -34, 0)), False)
sketch16.addGeometry(Part.ArcOfCircle(Part.Circle(App.Vector(0, 0, 0), App.Vector(0, 0, 1), 35), math.radians(-106), math.radians(-74)), False)
sketch16.addGeometry(Part.LineSegment(App.Vector(-10, -34, 0), App.Vector(-10, 34, 0)), False)
sketch16.addGeometry(Part.ArcOfCircle(Part.Circle(App.Vector(0, 0, 0), App.Vector(0, 0, 1), 35), math.radians(74), math.radians(106)), False)
sketch16.addGeometry(Part.Circle(App.Vector(0, 0, 0), App.Vector(0, 0, 1), 5), False)
sketch16.addConstraint(Sketcher.Constraint("Coincident", 0, 2, 1, 2))
sketch16.addConstraint(Sketcher.Constraint("Coincident", 1, 1, 2, 1))
sketch16.addConstraint(Sketcher.Constraint("Coincident", 2, 2, 3, 2))
sketch16.addConstraint(Sketcher.Constraint("Coincident", 3, 1, 0, 1))
sketch16.addConstraint(Sketcher.Constraint("Vertical", 0))
sketch16.addConstraint(Sketcher.Constraint("Vertical", 2))
sketch16.addConstraint(Sketcher.Constraint("Coincident", 1, 3, -1, 1))
sketch16.addConstraint(Sketcher.Constraint("Coincident", 3, 3, -1, 1))
sketch16.addConstraint(Sketcher.Constraint("Coincident", 4, 3, -1, 1))
sketch16.addConstraint(Sketcher.Constraint("Equal", 1, 3))
sketch16.addConstraint(Sketcher.Constraint("Horizontal", 0, 2, 1, 1))
sketch16.addConstraint(Sketcher.Constraint("Diameter", 4, Q("10 mm")))
sketch16.addConstraint(Sketcher.Constraint("DistanceX", 1, 1, 0, 2, Q("19 mm")))
sketch16.addConstraint(Sketcher.Constraint("Radius", 1, Q("35.29998 mm")))
pad15 = body10.newObject("PartDesign::Pad", "Pad014")
pad15.Profile = sketch16
pad15.Length = 25
pad15.Reversed = True

doc.recompute()
